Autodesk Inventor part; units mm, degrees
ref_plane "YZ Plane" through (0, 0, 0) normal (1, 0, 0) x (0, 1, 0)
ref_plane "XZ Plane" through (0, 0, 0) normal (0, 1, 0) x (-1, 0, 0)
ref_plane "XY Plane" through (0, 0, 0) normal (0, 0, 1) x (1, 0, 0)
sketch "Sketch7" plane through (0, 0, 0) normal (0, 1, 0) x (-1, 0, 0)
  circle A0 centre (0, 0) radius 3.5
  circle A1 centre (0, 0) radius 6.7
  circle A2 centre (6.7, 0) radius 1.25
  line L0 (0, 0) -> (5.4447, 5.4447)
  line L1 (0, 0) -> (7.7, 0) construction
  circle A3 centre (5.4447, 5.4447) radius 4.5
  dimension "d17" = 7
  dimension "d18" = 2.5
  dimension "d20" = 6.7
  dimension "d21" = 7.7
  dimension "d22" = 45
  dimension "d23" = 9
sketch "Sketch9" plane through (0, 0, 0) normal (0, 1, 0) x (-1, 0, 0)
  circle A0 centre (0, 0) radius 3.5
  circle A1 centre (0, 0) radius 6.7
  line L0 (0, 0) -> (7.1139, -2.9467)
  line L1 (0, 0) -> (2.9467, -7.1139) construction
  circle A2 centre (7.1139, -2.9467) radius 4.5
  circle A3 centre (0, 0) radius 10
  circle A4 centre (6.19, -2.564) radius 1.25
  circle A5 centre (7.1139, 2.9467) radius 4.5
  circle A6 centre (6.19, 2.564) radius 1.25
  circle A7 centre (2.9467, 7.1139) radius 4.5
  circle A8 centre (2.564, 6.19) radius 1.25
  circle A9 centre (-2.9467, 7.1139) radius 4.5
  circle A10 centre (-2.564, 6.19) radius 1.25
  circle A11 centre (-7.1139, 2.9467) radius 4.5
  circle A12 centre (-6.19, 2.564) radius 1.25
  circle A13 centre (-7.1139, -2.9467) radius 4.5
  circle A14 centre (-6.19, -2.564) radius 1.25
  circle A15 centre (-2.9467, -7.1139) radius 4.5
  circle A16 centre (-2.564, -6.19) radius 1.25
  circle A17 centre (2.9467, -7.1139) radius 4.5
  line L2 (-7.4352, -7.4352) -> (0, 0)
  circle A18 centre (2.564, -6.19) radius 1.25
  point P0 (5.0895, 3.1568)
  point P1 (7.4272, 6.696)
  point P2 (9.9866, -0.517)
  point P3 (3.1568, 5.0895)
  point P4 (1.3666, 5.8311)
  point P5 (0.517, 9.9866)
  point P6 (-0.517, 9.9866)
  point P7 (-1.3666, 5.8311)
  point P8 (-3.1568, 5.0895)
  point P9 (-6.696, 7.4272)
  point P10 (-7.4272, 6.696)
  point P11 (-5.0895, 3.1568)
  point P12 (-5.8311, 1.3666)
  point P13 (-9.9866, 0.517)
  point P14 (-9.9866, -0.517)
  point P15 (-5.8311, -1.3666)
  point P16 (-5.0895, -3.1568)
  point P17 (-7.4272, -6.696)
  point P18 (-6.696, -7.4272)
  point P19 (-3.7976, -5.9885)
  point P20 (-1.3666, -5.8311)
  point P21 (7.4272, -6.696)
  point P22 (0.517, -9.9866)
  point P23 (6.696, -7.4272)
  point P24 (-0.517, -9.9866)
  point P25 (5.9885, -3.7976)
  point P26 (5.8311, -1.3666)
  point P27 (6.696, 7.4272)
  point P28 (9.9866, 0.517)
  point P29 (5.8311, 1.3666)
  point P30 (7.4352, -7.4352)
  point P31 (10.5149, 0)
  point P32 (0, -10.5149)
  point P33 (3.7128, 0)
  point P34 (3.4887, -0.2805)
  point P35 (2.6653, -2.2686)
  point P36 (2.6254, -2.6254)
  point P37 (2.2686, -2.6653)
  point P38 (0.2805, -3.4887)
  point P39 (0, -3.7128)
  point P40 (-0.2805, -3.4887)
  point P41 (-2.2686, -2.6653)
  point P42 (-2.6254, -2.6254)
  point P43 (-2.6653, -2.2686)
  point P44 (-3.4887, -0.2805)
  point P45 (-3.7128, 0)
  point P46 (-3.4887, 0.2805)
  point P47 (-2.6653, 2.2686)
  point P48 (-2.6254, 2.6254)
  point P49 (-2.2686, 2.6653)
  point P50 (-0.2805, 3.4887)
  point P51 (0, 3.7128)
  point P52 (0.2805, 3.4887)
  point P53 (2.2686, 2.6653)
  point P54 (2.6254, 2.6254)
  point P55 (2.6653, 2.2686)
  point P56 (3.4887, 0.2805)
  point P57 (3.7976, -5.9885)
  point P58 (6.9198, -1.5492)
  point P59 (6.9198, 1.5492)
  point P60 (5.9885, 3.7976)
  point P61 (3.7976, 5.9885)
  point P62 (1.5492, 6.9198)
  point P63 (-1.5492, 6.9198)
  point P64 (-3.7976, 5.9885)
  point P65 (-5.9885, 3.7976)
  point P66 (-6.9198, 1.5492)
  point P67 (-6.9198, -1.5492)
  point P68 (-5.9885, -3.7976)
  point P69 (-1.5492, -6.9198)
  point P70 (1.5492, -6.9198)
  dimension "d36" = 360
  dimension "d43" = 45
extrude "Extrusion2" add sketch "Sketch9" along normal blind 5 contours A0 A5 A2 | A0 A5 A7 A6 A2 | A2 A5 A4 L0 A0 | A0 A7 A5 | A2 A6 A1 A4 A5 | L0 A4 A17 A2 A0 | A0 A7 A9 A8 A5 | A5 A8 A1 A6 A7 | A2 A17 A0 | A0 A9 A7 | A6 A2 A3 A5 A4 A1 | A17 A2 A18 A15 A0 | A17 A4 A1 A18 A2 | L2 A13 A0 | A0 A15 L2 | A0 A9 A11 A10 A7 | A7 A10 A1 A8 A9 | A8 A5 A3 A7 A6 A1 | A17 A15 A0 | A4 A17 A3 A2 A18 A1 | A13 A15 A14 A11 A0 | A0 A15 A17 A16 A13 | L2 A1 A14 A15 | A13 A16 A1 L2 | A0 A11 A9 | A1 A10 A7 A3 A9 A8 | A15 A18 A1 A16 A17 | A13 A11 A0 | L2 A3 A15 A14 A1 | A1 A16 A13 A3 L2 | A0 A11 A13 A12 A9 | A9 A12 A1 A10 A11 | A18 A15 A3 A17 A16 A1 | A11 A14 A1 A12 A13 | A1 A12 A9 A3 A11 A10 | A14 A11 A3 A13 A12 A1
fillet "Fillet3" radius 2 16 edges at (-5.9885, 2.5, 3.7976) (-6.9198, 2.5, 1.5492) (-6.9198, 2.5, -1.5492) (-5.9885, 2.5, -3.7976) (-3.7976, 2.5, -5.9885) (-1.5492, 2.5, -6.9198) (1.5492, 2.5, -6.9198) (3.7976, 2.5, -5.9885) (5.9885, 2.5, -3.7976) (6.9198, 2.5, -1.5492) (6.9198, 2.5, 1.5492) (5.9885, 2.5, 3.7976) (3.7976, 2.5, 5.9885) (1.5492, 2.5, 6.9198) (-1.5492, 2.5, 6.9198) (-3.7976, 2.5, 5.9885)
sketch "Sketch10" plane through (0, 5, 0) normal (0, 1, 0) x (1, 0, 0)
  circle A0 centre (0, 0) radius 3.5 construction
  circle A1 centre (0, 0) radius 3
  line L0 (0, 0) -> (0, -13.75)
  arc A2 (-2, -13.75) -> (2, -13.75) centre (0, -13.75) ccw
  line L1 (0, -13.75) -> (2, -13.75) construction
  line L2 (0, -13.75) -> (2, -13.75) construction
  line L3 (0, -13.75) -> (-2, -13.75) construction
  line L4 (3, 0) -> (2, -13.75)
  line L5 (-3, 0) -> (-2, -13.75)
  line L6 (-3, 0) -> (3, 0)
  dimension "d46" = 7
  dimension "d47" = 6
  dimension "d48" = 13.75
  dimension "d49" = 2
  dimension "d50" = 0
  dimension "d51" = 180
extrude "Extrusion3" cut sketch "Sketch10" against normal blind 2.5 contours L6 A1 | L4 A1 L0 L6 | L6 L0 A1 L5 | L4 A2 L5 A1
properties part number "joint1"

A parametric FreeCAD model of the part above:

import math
import FreeCAD as App
import Part
import Sketcher
Q = App.Units.Quantity


def edges_at(feature, points):
    """Names of the edges that pass closest to the given points."""
    edges = feature.Shape.Edges
    near = lambda p: min(range(len(edges)), key=lambda i: edges[i].distToShape(Part.Vertex(*p))[0])
    return sorted({f"Edge{near(p) + 1}" for p in points})

doc = App.newDocument("Part")
params = doc.addObject("Spreadsheet::Sheet", "Params")
for row, (alias, value) in enumerate([
    ("sketch1_diameter", "7 mm"),
    ("sketch1_radius", "10 mm"),
    ("sketch1_radius2", "4.5 mm"),
    ("sketch1_radius3", "1.25 mm"),
    ("pad1_length", "5 mm"),
    ("fillet_radius", "2 mm"),
    ("sketch2_radius", "3 mm"),
    ("sketch2_radius2", "2 mm"),
    ("pocket1_length", "2.5 mm"),
], start=1):
    params.set(f"A{row}", alias)
    params.set(f"B{row}", "=" + value)
    params.setAlias(f"B{row}", alias)

body = doc.addObject("PartDesign::Body", "Body")

sketch1 = body.newObject("Sketcher::SketchObject", "Sketch")
sketch1.AttachmentSupport = (doc.getObject("XZ_Plane"), [""])
sketch1.MapMode = "FlatFace"
sketch1.addGeometry(Part.ArcOfCircle(Part.Circle(App.Vector(-2.9, 7.1, 0), App.Vector(0, 0, 1), 4.5), math.radians(-175), math.radians(-133)), False)
sketch1.addGeometry(Part.ArcOfCircle(Part.Circle(App.Vector(0, 0, 0), App.Vector(0, 0, 1), 10), math.radians(132.04), math.radians(137.96)), False)
sketch1.addGeometry(Part.ArcOfCircle(Part.Circle(App.Vector(-7.1, 2.9, 0), App.Vector(0, 0, 1), 4.5), math.radians(43), math.radians(85)), False)
sketch1.addGeometry(Part.ArcOfCircle(Part.Circle(App.Vector(-2.6, 6.2, 0), App.Vector(0, 0, 1), 1.2), math.radians(-171), math.radians(36)), False)
sketch1.addGeometry(Part.ArcOfCircle(Part.Circle(App.Vector(2.9, 7.1, 0), App.Vector(0, 0, 1), 4.5), math.radians(140), math.radians(182)), False)
sketch1.addGeometry(Part.ArcOfCircle(Part.Circle(App.Vector(0, 0, 0), App.Vector(0, 0, 1), 10), math.radians(87.04), math.radians(92.96)), False)
sketch1.addGeometry(Part.ArcOfCircle(Part.Circle(App.Vector(-2.9, 7.1, 0), App.Vector(0, 0, 1), 4.5), math.radians(-2), math.radians(40)), False)
sketch1.addGeometry(Part.ArcOfCircle(Part.Circle(App.Vector(2.6, 6.2, 0), App.Vector(0, 0, 1), 1.2), math.radians(144), math.radians(351)), False)
sketch1.addGeometry(Part.ArcOfCircle(Part.Circle(App.Vector(7.1, 2.9, 0), App.Vector(0, 0, 1), 4.5), math.radians(95), math.radians(137)), False)
sketch1.addGeometry(Part.ArcOfCircle(Part.Circle(App.Vector(0, 0, 0), App.Vector(0, 0, 1), 10), math.radians(42.04), math.radians(47.96)), False)
sketch1.addGeometry(Part.ArcOfCircle(Part.Circle(App.Vector(2.9, 7.1, 0), App.Vector(0, 0, 1), 4.5), math.radians(-47), math.radians(-5)), False)
sketch1.addGeometry(Part.ArcOfCircle(Part.Circle(App.Vector(6.2, 2.6, 0), App.Vector(0, 0, 1), 1.2), math.radians(99), math.radians(306)), False)
sketch1.addGeometry(Part.ArcOfCircle(Part.Circle(App.Vector(7.1, -2.9, 0), App.Vector(0, 0, 1), 4.5), math.radians(50), math.radians(92)), False)
sketch1.addGeometry(Part.ArcOfCircle(Part.Circle(App.Vector(0, 0, 0), App.Vector(0, 0, 1), 10), math.radians(-2.96), math.radians(2.96)), False)
sketch1.addGeometry(Part.ArcOfCircle(Part.Circle(App.Vector(7.1, 2.9, 0), App.Vector(0, 0, 1), 4.5), math.radians(-92), math.radians(-50)), False)
sketch1.addGeometry(Part.ArcOfCircle(Part.Circle(App.Vector(6.2, -2.6, 0), App.Vector(0, 0, 1), 1.2), math.radians(54), math.radians(261)), False)
sketch1.addGeometry(Part.ArcOfCircle(Part.Circle(App.Vector(2.9, -7.1, 0), App.Vector(0, 0, 1), 4.5), math.radians(5), math.radians(47)), False)
sketch1.addGeometry(Part.ArcOfCircle(Part.Circle(App.Vector(0, 0, 0), App.Vector(0, 0, 1), 10), math.radians(-47.96), math.radians(-42.04)), False)
sketch1.addGeometry(Part.ArcOfCircle(Part.Circle(App.Vector(7.1, -2.9, 0), App.Vector(0, 0, 1), 4.5), math.radians(-137), math.radians(-95)), False)
sketch1.addGeometry(Part.ArcOfCircle(Part.Circle(App.Vector(2.6, -6.2, 0), App.Vector(0, 0, 1), 1.2), math.radians(9), math.radians(216)), False)
sketch1.addGeometry(Part.ArcOfCircle(Part.Circle(App.Vector(-2.9, -7.1, 0), App.Vector(0, 0, 1), 4.5), math.radians(-40), math.radians(2)), False)
sketch1.addGeometry(Part.ArcOfCircle(Part.Circle(App.Vector(0, 0, 0), App.Vector(0, 0, 1), 10), math.radians(-92.96), math.radians(-87.04)), False)
sketch1.addGeometry(Part.ArcOfCircle(Part.Circle(App.Vector(2.9, -7.1, 0), App.Vector(0, 0, 1), 4.5), math.radians(178), math.radians(220)), False)
sketch1.addGeometry(Part.ArcOfCircle(Part.Circle(App.Vector(-2.6, -6.2, 0), App.Vector(0, 0, 1), 1.2), math.radians(-36), math.radians(171)), False)
sketch1.addGeometry(Part.ArcOfCircle(Part.Circle(App.Vector(-7.1, -2.9, 0), App.Vector(0, 0, 1), 4.5), math.radians(-85), math.radians(-43)), False)
sketch1.addGeometry(Part.ArcOfCircle(Part.Circle(App.Vector(0, 0, 0), App.Vector(0, 0, 1), 10), math.radians(-137.96), math.radians(-132.04)), False)
sketch1.addGeometry(Part.ArcOfCircle(Part.Circle(App.Vector(-2.9, -7.1, 0), App.Vector(0, 0, 1), 4.5), math.radians(133), math.radians(175)), False)
sketch1.addGeometry(Part.ArcOfCircle(Part.Circle(App.Vector(-6.2, -2.6, 0), App.Vector(0, 0, 1), 1.2), math.radians(-81), math.radians(126)), False)
sketch1.addGeometry(Part.ArcOfCircle(Part.Circle(App.Vector(-7.1, 2.9, 0), App.Vector(0, 0, 1), 4.5), math.radians(-130), math.radians(-88)), False)
sketch1.addGeometry(Part.ArcOfCircle(Part.Circle(App.Vector(0, 0, 0), App.Vector(0, 0, 1), 10), math.radians(177.04), math.radians(182.96)), False)
sketch1.addGeometry(Part.ArcOfCircle(Part.Circle(App.Vector(-7.1, -2.9, 0), App.Vector(0, 0, 1), 4.5), math.radians(88), math.radians(130)), False)
sketch1.addGeometry(Part.ArcOfCircle(Part.Circle(App.Vector(-6.2, 2.6, 0), App.Vector(0, 0, 1), 1.2), math.radians(-126), math.radians(81)), False)
sketch1.addGeometry(Part.Circle(App.Vector(0, 0, 0), App.Vector(0, 0, 1), 3.5), False)
sketch1.addConstraint(Sketcher.Constraint("Coincident", 0, 1, 1, 2))
sketch1.addConstraint(Sketcher.Constraint("Coincident", 1, 1, 2, 2))
sketch1.addConstraint(Sketcher.Constraint("Coincident", 2, 1, 3, 1))
sketch1.addConstraint(Sketcher.Constraint("Coincident", 3, 2, 4, 2))
sketch1.addConstraint(Sketcher.Constraint("Coincident", 4, 1, 5, 2))
sketch1.addConstraint(Sketcher.Constraint("Coincident", 5, 1, 6, 2))
sketch1.addConstraint(Sketcher.Constraint("Coincident", 6, 1, 7, 1))
sketch1.addConstraint(Sketcher.Constraint("Coincident", 7, 2, 8, 2))
sketch1.addConstraint(Sketcher.Constraint("Coincident", 8, 1, 9, 2))
sketch1.addConstraint(Sketcher.Constraint("Coincident", 9, 1, 10, 2))
sketch1.addConstraint(Sketcher.Constraint("Coincident", 10, 1, 11, 1))
sketch1.addConstraint(Sketcher.Constraint("Coincident", 11, 2, 12, 2))
sketch1.addConstraint(Sketcher.Constraint("Coincident", 12, 1, 13, 2))
sketch1.addConstraint(Sketcher.Constraint("Coincident", 13, 1, 14, 2))
sketch1.addConstraint(Sketcher.Constraint("Coincident", 14, 1, 15, 1))
sketch1.addConstraint(Sketcher.Constraint("Coincident", 15, 2, 16, 2))
sketch1.addConstraint(Sketcher.Constraint("Coincident", 16, 1, 17, 2))
sketch1.addConstraint(Sketcher.Constraint("Coincident", 17, 1, 18, 2))
sketch1.addConstraint(Sketcher.Constraint("Coincident", 18, 1, 19, 1))
sketch1.addConstraint(Sketcher.Constraint("Coincident", 19, 2, 20, 2))
sketch1.addConstraint(Sketcher.Constraint("Coincident", 20, 1, 21, 2))
sketch1.addConstraint(Sketcher.Constraint("Coincident", 21, 1, 22, 2))
sketch1.addConstraint(Sketcher.Constraint("Coincident", 22, 1, 23, 1))
sketch1.addConstraint(Sketcher.Constraint("Coincident", 23, 2, 24, 2))
sketch1.addConstraint(Sketcher.Constraint("Coincident", 24, 1, 25, 2))
sketch1.addConstraint(Sketcher.Constraint("Coincident", 25, 1, 26, 2))
sketch1.addConstraint(Sketcher.Constraint("Coincident", 26, 1, 27, 1))
sketch1.addConstraint(Sketcher.Constraint("Coincident", 27, 2, 28, 2))
sketch1.addConstraint(Sketcher.Constraint("Coincident", 28, 1, 29, 2))
sketch1.addConstraint(Sketcher.Constraint("Coincident", 29, 1, 30, 2))
sketch1.addConstraint(Sketcher.Constraint("Coincident", 30, 1, 31, 1))
sketch1.addConstraint(Sketcher.Constraint("Coincident", 31, 2, 0, 2))
sketch1.addConstraint(Sketcher.Constraint("Coincident", 1, 3, -1, 1))
sketch1.addConstraint(Sketcher.Constraint("Coincident", 5, 3, -1, 1))
sketch1.addConstraint(Sketcher.Constraint("Coincident", 9, 3, -1, 1))
sketch1.addConstraint(Sketcher.Constraint("Coincident", 13, 3, -1, 1))
sketch1.addConstraint(Sketcher.Constraint("Coincident", 17, 3, -1, 1))
sketch1.addConstraint(Sketcher.Constraint("Coincident", 21, 3, -1, 1))
sketch1.addConstraint(Sketcher.Constraint("Coincident", 25, 3, -1, 1))
sketch1.addConstraint(Sketcher.Constraint("Coincident", 29, 3, -1, 1))
sketch1.addConstraint(Sketcher.Constraint("Coincident", 32, 3, -1, 1))
sketch1.addConstraint(Sketcher.Constraint("Coincident", 6, 3, 0, 3))
sketch1.addConstraint(Sketcher.Constraint("Coincident", 10, 3, 4, 3))
sketch1.addConstraint(Sketcher.Constraint("Coincident", 14, 3, 8, 3))
sketch1.addConstraint(Sketcher.Constraint("Coincident", 18, 3, 12, 3))
sketch1.addConstraint(Sketcher.Constraint("Coincident", 22, 3, 16, 3))
sketch1.addConstraint(Sketcher.Constraint("Coincident", 26, 3, 20, 3))
sketch1.addConstraint(Sketcher.Constraint("Coincident", 28, 3, 2, 3))
sketch1.addConstraint(Sketcher.Constraint("Coincident", 30, 3, 24, 3))
sketch1.addConstraint(Sketcher.Constraint("Equal", 0, 2))
sketch1.addConstraint(Sketcher.Constraint("Equal", 2, 4))
sketch1.addConstraint(Sketcher.Constraint("Equal", 1, 5))
sketch1.addConstraint(Sketcher.Constraint("Equal", 4, 6))
sketch1.addConstraint(Sketcher.Constraint("Equal", 3, 7))
sketch1.addConstraint(Sketcher.Constraint("Equal", 6, 8))
sketch1.addConstraint(Sketcher.Constraint("Equal", 5, 9))
sketch1.addConstraint(Sketcher.Constraint("Equal", 8, 10))
sketch1.addConstraint(Sketcher.Constraint("Equal", 7, 11))
sketch1.addConstraint(Sketcher.Constraint("Equal", 10, 12))
sketch1.addConstraint(Sketcher.Constraint("Equal", 9, 13))
sketch1.addConstraint(Sketcher.Constraint("Equal", 12, 14))
sketch1.addConstraint(Sketcher.Constraint("Equal", 11, 15))
sketch1.addConstraint(Sketcher.Constraint("Equal", 14, 16))
sketch1.addConstraint(Sketcher.Constraint("Equal", 13, 17))
sketch1.addConstraint(Sketcher.Constraint("Equal", 16, 18))
sketch1.addConstraint(Sketcher.Constraint("Equal", 15, 19))
sketch1.addConstraint(Sketcher.Constraint("Equal", 18, 20))
sketch1.addConstraint(Sketcher.Constraint("Equal", 17, 21))
sketch1.addConstraint(Sketcher.Constraint("Equal", 20, 22))
sketch1.addConstraint(Sketcher.Constraint("Equal", 19, 23))
sketch1.addConstraint(Sketcher.Constraint("Equal", 22, 24))
sketch1.addConstraint(Sketcher.Constraint("Equal", 21, 25))
sketch1.addConstraint(Sketcher.Constraint("Equal", 24, 26))
sketch1.addConstraint(Sketcher.Constraint("Equal", 23, 27))
sketch1.addConstraint(Sketcher.Constraint("Equal", 26, 28))
sketch1.addConstraint(Sketcher.Constraint("Equal", 25, 29))
sketch1.addConstraint(Sketcher.Constraint("Equal", 28, 30))
sketch1.addConstraint(Sketcher.Constraint("Equal", 27, 31))
sketch1.addConstraint(Sketcher.Constraint("Symmetric", 2, 3, 12, 3, -1, 1))
sketch1.addConstraint(Sketcher.Constraint("Symmetric", 0, 3, 16, 3, -1, 1))
sketch1.addConstraint(Sketcher.Constraint("Symmetric", 3, 3, 19, 3, -1, 1))
sketch1.addConstraint(Sketcher.Constraint("Symmetric", 4, 3, 20, 3, -1, 1))
sketch1.addConstraint(Sketcher.Constraint("Symmetric", 7, 3, 23, 3, -1, 1))
sketch1.addConstraint(Sketcher.Constraint("Symmetric", 8, 3, 24, 3, -1, 1))
sketch1.addConstraint(Sketcher.Constraint("Symmetric", 11, 3, 27, 3, -1, 1))
sketch1.addConstraint(Sketcher.Constraint("Symmetric", 15, 3, 31, 3, -1, 1))
sketch1.addConstraint(Sketcher.Constraint("Symmetric", 0, 3, 4, 3, -2))
sketch1.addConstraint(Sketcher.Constraint("Symmetric", 3, 3, 7, 3, -2))
sketch1.addConstraint(Sketcher.Constraint("Symmetric", 2, 3, 8, 3, -2))
sketch1.addConstraint(Sketcher.Constraint("Symmetric", 15, 3, 27, 3, -2))
sketch1.addConstraint(Sketcher.Constraint("Diameter", 32, Q("7 mm")))
sketch1.addConstraint(Sketcher.Constraint("Radius", 1, Q("10 mm")))
sketch1.addConstraint(Sketcher.Constraint("Radius", 0, Q("4.5 mm")))
sketch1.addConstraint(Sketcher.Constraint("Radius", 3, Q("1.25 mm")))
sketch1.addConstraint(Sketcher.Constraint("DistanceY", -1, 1, 3, 3, Q("6.19 mm")))
sketch1.addConstraint(Sketcher.Constraint("DistanceX", -1, 1, 11, 3, Q("6.19 mm")))
sketch1.addConstraint(Sketcher.Constraint("DistanceY", -1, 1, 0, 3, Q("7.114 mm")))
sketch1.addConstraint(Sketcher.Constraint("DistanceX", 2, 3, -1, 1, Q("7.114 mm")))
sketch1.addConstraint(Sketcher.Constraint("DistanceX", 3, 3, -1, 1, Q("2.564 mm")))
sketch1.addConstraint(Sketcher.Constraint("DistanceY", -1, 1, 11, 3, Q("2.564 mm")))
sketch1.addConstraint(Sketcher.Constraint("DistanceY", -1, 1, 0, 1, Q("6.696 mm")))
sketch1.addConstraint(Sketcher.Constraint("DistanceX", 1, 1, -1, 1, Q("6.696 mm")))
sketch1.setExpression("Constraints[90]", "Params.sketch1_diameter")
sketch1.setExpression("Constraints[91]", "Params.sketch1_radius")
sketch1.setExpression("Constraints[92]", "Params.sketch1_radius2")
sketch1.setExpression("Constraints[93]", "Params.sketch1_radius3")
pad1 = body.newObject("PartDesign::Pad", "Pad")
pad1.Profile = sketch1
pad1.setExpression("Length", "Params.pad1_length")
pad1.Reversed = True
doc.recompute()

fillet = body.newObject("PartDesign::Fillet", "Fillet")
fillet.Base = (pad1, edges_at(pad1, [
    (-5.989, 2.5, 3.798),
    (-6.92, 2.5, 1.549),
    (-6.92, 2.5, -1.549),
    (-5.989, 2.5, -3.798),
    (-3.798, 2.5, -5.989),
    (-1.549, 2.5, -6.92),
    (1.549, 2.5, -6.92),
    (3.798, 2.5, -5.989),
    (5.989, 2.5, -3.798),
    (6.92, 2.5, -1.549),
    (6.92, 2.5, 1.549),
    (5.989, 2.5, 3.798),
    (3.798, 2.5, 5.989),
    (1.549, 2.5, 6.92),
    (-1.549, 2.5, 6.92),
    (-3.798, 2.5, 5.989),
]))
fillet.setExpression("Radius", "Params.fillet_radius")

sketch2 = body.newObject("Sketcher::SketchObject", "Sketch001")
sketch2.AttachmentSupport = (doc.getObject("XZ_Plane"), [""])
sketch2.MapMode = "FlatFace"
sketch2.AttachmentOffset = App.Placement(App.Vector(0, 0, -5), App.Rotation())
sketch2.addGeometry(Part.ArcOfCircle(Part.Circle(App.Vector(0, 0, 0), App.Vector(0, 0, 1), 3), math.radians(180), math.radians(360)), False)
sketch2.addGeometry(Part.LineSegment(App.Vector(-3, 0, 0), App.Vector(-2, 13.8, 0)), False)
sketch2.addGeometry(Part.ArcOfCircle(Part.Circle(App.Vector(0, 13.8, 0), App.Vector(0, 0, 1), 2), math.radians(0), math.radians(180)), False)
sketch2.addGeometry(Part.LineSegment(App.Vector(2, 13.8, 0), App.Vector(3, 0, 0)), False)
sketch2.addConstraint(Sketcher.Constraint("Coincident", 0, 1, 1, 1))
sketch2.addConstraint(Sketcher.Constraint("Coincident", 1, 2, 2, 2))
sketch2.addConstraint(Sketcher.Constraint("Coincident", 2, 1, 3, 1))
sketch2.addConstraint(Sketcher.Constraint("Coincident", 3, 2, 0, 2))
sketch2.addConstraint(Sketcher.Constraint("Coincident", 0, 3, -1, 1))
sketch2.addConstraint(Sketcher.Constraint("Symmetric", 1, 2, 2, 1, -2))
sketch2.addConstraint(Sketcher.Constraint("PointOnObject", 0, 1, -1))
sketch2.addConstraint(Sketcher.Constraint("PointOnObject", 3, 2, -1))
sketch2.addConstraint(Sketcher.Constraint("Horizontal", 2, 3, 1, 2))
sketch2.addConstraint(Sketcher.Constraint("Radius", 0, Q("3 mm")))
sketch2.addConstraint(Sketcher.Constraint("Radius", 2, Q("2 mm")))
sketch2.addConstraint(Sketcher.Constraint("DistanceY", -1, 1, 2, 3, Q("13.75 mm")))
sketch2.setExpression("Constraints[9]", "Params.sketch2_radius")
sketch2.setExpression("Constraints[10]", "Params.sketch2_radius2")
pocket1 = body.newObject("PartDesign::Pocket", "Pocket")
pocket1.Profile = sketch2
pocket1.setExpression("Length", "Params.pocket1_length")
pocket1.Reversed = True

doc.recompute()
